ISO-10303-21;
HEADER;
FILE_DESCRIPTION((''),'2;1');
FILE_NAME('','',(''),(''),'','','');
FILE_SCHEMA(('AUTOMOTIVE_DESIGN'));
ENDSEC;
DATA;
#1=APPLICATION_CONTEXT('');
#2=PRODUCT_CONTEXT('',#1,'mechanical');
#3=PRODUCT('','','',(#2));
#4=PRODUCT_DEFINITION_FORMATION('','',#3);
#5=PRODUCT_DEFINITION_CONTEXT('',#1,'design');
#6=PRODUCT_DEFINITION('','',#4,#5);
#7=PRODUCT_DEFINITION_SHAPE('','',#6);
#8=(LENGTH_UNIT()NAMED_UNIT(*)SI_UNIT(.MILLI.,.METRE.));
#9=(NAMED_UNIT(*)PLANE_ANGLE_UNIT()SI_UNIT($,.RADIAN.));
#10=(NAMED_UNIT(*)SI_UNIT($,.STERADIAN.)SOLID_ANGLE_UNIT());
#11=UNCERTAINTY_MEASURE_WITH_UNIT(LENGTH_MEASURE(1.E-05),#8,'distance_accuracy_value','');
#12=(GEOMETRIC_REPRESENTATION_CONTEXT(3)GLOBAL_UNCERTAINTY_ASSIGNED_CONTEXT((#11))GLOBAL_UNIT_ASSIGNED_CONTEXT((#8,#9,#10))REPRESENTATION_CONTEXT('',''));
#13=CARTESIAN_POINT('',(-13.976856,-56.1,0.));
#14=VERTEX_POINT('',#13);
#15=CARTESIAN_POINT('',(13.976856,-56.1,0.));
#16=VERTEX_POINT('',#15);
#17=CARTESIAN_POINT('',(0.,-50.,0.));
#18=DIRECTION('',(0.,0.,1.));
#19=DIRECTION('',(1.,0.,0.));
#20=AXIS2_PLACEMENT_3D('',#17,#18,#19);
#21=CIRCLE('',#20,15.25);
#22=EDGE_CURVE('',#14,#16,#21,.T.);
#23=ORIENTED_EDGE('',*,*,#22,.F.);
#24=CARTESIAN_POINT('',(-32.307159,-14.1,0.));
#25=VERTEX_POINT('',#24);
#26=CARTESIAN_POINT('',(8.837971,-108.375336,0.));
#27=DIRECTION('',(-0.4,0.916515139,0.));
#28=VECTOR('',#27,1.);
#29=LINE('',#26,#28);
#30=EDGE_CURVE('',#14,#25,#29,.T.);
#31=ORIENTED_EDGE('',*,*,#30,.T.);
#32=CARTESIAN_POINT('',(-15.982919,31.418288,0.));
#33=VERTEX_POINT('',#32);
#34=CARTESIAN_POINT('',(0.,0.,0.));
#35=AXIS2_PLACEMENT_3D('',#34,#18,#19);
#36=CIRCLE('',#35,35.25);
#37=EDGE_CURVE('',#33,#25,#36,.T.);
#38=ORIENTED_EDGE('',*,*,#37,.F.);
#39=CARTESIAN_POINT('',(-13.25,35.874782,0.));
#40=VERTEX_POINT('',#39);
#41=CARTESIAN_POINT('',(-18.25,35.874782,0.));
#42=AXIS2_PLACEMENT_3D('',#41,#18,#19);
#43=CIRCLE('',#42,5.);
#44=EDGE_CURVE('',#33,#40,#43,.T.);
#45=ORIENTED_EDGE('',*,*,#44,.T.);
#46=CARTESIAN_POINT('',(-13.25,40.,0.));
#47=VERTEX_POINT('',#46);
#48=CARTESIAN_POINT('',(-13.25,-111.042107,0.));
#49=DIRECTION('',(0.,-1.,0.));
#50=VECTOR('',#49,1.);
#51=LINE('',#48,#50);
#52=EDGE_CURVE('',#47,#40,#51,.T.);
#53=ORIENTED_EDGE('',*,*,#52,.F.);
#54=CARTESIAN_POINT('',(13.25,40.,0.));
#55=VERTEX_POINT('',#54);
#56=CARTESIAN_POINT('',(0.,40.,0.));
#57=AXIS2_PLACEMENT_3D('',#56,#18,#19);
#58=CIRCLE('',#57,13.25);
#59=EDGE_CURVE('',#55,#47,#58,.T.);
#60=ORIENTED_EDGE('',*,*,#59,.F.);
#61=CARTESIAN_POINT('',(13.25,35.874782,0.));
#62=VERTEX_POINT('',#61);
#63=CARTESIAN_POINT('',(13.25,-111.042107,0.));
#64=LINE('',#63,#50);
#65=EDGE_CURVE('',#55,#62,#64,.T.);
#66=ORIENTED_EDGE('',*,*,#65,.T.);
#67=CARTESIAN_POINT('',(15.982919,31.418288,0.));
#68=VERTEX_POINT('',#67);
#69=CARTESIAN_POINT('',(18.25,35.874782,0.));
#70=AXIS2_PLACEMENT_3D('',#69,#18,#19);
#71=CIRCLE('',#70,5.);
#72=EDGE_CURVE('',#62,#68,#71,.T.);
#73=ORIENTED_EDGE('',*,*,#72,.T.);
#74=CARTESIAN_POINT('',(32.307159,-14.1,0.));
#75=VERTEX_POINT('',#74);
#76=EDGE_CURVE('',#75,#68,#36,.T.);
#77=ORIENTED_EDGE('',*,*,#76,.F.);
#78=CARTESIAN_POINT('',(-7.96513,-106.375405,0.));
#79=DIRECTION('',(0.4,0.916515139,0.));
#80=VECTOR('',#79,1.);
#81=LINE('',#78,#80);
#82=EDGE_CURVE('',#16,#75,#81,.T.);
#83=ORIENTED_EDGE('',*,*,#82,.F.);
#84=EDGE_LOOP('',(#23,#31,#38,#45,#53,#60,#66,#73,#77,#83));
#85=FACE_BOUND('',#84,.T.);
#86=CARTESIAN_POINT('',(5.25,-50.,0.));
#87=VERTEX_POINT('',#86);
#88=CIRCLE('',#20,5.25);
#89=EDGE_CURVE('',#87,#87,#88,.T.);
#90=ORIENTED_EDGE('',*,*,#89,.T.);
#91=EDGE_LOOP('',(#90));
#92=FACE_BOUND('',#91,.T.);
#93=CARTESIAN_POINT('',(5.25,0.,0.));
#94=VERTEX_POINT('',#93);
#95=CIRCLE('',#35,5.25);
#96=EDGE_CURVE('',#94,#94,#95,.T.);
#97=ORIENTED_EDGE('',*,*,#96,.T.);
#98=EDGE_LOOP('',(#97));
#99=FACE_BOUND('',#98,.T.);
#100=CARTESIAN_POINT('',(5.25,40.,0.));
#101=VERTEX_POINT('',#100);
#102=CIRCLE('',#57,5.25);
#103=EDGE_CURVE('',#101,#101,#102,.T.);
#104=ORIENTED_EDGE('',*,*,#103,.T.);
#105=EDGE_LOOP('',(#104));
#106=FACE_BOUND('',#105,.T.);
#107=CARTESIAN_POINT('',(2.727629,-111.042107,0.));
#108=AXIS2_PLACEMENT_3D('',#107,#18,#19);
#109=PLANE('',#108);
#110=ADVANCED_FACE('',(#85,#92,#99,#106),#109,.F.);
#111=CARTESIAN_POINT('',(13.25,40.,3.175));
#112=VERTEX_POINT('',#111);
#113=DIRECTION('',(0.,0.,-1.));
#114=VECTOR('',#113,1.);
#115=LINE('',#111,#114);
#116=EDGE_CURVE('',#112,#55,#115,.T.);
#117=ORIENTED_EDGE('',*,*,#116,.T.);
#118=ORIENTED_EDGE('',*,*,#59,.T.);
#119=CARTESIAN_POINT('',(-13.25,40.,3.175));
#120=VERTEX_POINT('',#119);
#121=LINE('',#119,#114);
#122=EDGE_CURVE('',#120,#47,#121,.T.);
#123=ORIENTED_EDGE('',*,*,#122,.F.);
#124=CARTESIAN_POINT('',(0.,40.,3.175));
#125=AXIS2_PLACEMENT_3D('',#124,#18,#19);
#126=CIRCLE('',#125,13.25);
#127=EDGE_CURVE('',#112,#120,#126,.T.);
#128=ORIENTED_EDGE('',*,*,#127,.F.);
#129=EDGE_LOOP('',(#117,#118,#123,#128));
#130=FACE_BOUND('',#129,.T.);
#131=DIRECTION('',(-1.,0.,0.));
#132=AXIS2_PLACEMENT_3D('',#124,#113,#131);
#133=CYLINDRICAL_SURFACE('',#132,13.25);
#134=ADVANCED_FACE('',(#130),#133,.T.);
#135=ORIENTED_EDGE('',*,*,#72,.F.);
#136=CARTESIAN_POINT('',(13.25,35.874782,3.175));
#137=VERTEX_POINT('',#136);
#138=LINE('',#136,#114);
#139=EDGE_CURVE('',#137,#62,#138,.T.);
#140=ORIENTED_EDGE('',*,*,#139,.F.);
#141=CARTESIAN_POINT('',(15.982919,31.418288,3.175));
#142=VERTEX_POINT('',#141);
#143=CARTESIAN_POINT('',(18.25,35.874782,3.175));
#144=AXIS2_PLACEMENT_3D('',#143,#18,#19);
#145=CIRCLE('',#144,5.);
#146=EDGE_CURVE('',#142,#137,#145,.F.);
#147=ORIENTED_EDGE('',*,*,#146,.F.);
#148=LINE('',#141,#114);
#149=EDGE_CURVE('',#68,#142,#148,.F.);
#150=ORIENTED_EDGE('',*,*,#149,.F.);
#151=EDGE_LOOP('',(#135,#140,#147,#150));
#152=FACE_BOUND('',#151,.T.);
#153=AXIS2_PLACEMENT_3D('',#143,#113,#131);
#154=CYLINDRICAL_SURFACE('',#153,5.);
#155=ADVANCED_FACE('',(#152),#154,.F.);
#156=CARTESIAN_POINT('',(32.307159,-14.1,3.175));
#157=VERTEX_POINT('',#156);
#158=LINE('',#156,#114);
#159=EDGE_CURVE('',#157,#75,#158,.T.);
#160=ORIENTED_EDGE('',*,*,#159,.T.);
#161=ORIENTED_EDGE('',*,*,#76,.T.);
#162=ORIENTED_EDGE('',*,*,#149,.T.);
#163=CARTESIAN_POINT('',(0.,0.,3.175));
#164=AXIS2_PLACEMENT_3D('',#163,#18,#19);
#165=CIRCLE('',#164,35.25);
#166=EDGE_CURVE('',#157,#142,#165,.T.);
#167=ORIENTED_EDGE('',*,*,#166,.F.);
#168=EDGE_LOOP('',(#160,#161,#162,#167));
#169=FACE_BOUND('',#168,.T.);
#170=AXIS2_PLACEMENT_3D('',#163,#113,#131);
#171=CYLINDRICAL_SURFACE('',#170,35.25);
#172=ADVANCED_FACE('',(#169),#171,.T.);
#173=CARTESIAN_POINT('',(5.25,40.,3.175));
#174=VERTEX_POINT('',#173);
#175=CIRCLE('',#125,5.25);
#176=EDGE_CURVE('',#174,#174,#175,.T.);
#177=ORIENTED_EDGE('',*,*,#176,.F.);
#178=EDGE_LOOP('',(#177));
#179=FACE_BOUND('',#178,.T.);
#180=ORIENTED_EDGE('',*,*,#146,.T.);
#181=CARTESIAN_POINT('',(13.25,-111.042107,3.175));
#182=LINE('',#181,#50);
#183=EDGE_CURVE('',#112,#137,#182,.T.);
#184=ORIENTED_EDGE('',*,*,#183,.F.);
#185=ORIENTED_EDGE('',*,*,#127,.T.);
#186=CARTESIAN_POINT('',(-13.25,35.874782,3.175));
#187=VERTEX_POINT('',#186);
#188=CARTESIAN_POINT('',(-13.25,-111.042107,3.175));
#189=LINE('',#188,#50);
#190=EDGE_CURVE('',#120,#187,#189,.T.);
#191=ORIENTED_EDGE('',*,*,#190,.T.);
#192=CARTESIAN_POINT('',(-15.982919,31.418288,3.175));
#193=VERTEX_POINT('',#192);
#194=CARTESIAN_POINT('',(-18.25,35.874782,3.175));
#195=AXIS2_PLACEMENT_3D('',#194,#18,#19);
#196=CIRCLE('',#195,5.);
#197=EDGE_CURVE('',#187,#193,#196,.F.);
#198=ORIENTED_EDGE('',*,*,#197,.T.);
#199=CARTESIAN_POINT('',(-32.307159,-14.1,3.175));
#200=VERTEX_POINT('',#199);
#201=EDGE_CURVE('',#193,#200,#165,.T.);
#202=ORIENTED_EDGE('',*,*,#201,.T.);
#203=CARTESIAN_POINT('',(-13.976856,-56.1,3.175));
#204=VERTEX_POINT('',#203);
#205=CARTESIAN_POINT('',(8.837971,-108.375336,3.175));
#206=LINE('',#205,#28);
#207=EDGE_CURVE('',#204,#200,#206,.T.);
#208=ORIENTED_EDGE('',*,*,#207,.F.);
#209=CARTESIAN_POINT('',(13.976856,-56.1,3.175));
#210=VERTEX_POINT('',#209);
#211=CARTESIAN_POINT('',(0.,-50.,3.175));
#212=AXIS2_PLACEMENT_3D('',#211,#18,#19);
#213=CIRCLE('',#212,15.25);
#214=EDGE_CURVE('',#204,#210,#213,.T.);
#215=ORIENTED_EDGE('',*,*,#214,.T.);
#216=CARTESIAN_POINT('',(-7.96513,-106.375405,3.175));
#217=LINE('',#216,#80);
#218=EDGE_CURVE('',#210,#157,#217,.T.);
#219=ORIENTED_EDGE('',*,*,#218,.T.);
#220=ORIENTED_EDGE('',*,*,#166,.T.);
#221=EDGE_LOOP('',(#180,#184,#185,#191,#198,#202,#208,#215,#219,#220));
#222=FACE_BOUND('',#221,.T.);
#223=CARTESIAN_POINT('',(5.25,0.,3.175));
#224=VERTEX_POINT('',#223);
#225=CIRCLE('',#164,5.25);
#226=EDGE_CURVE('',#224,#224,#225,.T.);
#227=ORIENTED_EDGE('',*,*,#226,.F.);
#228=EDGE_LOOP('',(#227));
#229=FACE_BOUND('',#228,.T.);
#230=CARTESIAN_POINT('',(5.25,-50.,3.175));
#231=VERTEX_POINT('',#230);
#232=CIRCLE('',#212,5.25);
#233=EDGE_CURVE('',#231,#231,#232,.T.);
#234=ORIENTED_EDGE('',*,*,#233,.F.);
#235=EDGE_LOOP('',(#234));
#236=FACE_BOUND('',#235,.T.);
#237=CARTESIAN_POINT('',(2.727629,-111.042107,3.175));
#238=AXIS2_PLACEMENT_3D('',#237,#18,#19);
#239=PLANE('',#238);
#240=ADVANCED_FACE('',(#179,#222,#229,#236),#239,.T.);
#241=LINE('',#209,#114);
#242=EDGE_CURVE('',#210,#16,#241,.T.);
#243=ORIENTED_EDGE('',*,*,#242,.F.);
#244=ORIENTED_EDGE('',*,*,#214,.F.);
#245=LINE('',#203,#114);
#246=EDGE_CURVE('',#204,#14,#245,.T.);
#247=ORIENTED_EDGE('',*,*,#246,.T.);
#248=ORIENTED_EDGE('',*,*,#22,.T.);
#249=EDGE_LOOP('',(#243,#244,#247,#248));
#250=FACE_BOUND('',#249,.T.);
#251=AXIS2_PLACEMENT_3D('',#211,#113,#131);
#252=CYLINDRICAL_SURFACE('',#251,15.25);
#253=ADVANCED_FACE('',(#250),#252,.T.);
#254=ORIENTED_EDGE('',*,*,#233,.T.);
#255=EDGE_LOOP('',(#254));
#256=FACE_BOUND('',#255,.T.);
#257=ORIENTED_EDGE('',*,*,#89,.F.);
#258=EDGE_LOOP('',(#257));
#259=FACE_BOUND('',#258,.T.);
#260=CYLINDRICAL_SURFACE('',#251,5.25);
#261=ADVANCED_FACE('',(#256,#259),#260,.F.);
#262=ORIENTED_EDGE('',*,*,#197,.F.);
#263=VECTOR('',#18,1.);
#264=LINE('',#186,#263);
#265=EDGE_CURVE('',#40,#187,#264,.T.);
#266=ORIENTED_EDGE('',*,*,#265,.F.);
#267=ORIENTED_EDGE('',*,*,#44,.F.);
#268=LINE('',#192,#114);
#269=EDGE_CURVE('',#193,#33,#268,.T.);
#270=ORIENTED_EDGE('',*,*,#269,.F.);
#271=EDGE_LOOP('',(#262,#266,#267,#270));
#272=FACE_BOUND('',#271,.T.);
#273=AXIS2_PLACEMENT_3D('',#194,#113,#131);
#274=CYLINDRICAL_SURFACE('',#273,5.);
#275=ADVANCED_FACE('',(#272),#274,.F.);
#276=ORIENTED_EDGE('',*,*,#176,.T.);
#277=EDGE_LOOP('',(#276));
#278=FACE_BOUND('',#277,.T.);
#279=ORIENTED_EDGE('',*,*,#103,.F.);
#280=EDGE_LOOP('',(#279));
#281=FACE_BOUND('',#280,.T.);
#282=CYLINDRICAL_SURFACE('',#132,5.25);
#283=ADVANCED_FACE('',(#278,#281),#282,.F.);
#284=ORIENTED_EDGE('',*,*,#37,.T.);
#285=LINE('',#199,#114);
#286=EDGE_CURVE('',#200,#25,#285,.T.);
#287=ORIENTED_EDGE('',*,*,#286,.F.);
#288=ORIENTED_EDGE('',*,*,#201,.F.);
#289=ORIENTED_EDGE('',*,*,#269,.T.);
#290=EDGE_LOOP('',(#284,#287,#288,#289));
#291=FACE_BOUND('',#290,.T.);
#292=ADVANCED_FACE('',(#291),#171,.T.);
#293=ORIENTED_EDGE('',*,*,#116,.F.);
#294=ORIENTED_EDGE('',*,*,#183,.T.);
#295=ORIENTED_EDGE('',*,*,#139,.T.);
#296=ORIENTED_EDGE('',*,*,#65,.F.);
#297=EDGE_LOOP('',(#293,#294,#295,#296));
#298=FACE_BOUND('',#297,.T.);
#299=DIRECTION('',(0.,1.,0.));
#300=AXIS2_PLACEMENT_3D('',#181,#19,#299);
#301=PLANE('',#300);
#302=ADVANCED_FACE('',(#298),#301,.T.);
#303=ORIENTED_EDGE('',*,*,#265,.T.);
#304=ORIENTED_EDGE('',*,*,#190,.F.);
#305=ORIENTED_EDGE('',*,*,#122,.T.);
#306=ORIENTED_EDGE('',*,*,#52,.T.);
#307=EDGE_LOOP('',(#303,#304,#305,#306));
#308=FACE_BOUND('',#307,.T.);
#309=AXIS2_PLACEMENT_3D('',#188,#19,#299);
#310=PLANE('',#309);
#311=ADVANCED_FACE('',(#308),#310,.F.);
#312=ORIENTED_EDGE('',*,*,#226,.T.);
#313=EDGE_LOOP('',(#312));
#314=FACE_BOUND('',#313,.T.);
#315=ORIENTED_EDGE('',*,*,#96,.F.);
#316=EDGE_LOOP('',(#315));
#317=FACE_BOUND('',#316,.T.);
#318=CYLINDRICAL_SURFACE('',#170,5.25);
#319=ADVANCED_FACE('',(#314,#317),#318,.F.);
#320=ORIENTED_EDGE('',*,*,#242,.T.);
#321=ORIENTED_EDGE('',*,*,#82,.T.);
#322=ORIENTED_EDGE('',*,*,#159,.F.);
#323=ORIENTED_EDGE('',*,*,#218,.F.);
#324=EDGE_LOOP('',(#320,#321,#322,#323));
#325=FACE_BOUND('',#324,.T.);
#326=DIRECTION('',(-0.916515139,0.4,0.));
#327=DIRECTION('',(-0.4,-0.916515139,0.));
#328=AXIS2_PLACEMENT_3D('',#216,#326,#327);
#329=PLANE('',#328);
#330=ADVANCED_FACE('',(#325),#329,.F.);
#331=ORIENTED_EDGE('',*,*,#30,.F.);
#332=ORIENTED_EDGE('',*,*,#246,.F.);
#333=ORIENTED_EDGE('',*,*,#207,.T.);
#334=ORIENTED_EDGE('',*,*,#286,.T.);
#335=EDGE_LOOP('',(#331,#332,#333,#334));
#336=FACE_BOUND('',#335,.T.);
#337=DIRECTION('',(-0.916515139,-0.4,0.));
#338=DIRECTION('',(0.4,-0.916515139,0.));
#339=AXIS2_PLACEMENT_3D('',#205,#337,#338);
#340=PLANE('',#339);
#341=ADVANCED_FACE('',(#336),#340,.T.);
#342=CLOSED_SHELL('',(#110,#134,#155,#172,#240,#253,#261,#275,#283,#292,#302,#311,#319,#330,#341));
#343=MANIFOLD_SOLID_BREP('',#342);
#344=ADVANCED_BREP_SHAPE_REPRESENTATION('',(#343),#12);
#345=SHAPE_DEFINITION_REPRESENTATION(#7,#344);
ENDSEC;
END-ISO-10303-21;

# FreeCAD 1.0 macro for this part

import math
import FreeCAD as App
import Part
import Sketcher


def edges_at(feature, points):
    """Names of the edges that pass closest to the given points."""
    edges = feature.Shape.Edges
    near = lambda p: min(range(len(edges)), key=lambda i: edges[i].distToShape(Part.Vertex(*p))[0])
    return sorted({f"Edge{near(p) + 1}" for p in points})

doc = App.newDocument("Part")
body = doc.addObject("PartDesign::Body", "Body")

sketch1 = body.newObject("Sketcher::SketchObject", "Sketch")
sketch1.AttachmentSupport = (doc.getObject("XY_Plane"), [""])
sketch1.MapMode = "FlatFace"
sketch1.addGeometry([
    Part.ArcOfCircle(Part.Circle(App.Vector(0, 0, 0), App.Vector(0, 0, 1), 35.25), math.radians(112.079116), math.radians(203.578178)),
    Part.LineSegment(App.Vector(-32.307159, -14.1, 0), App.Vector(-13.976856, -56.1, 0)),
    Part.ArcOfCircle(Part.Circle(App.Vector(0, -50, 0), App.Vector(0, 0, 1), 15.25), math.radians(-156.421822), math.radians(-23.578178)),
    Part.LineSegment(App.Vector(13.976856, -56.1, 0), App.Vector(32.307159, -14.1, 0)),
    Part.ArcOfCircle(Part.Circle(App.Vector(0, 0, 0), App.Vector(0, 0, 1), 35.25), math.radians(-23.578178), math.radians(67.920884)),
    Part.LineSegment(App.Vector(13.25, 32.664966, 0), App.Vector(13.25, 40, 0)),
    Part.ArcOfCircle(Part.Circle(App.Vector(0, 40, 0), App.Vector(0, 0, 1), 13.25), math.radians(0), math.radians(180)),
    Part.LineSegment(App.Vector(-13.25, 40, 0), App.Vector(-13.25, 32.664966, 0)),
    Part.Circle(App.Vector(0, -50, 0), App.Vector(0, 0, 1), 5.25),
    Part.Circle(App.Vector(0, 0, 0), App.Vector(0, 0, 1), 5.25),
    Part.Circle(App.Vector(0, 40, 0), App.Vector(0, 0, 1), 5.25),
], False)
sketch1.addConstraint([
    Sketcher.Constraint("Tangent", 0, 2, 1, 1),
    Sketcher.Constraint("Tangent", 1, 2, 2, 1),
    Sketcher.Constraint("Tangent", 2, 2, 3, 1),
    Sketcher.Constraint("Tangent", 3, 2, 4, 1),
    Sketcher.Constraint("Coincident", 4, 2, 5, 1),
    Sketcher.Constraint("Tangent", 5, 2, 6, 1),
    Sketcher.Constraint("Tangent", 6, 2, 7, 1),
    Sketcher.Constraint("Coincident", 7, 2, 0, 1),
    Sketcher.Constraint("Vertical", 5),
    Sketcher.Constraint("Vertical", 7),
    Sketcher.Constraint("Coincident", 0, 3, -1, 1),
    Sketcher.Constraint("Coincident", 4, 3, -1, 1),
    Sketcher.Constraint("Coincident", 9, 3, -1, 1),
    Sketcher.Constraint("Coincident", 8, 3, 2, 3),
    Sketcher.Constraint("Coincident", 10, 3, 6, 3),
    Sketcher.Constraint("Equal", 0, 4),
    Sketcher.Constraint("Equal", 8, 9),
    Sketcher.Constraint("Equal", 9, 10),
    Sketcher.Constraint("PointOnObject", 2, 3, -2),
    Sketcher.Constraint("PointOnObject", 6, 3, -2),
    Sketcher.Constraint("Diameter", 8, 10.5),
    Sketcher.Constraint("Radius", 0, 35.25),
    Sketcher.Constraint("Radius", 2, 15.25),
    Sketcher.Constraint("Radius", 6, 13.25),
    Sketcher.Constraint("DistanceY", 2, 3, -1, 1, 50.0),
    Sketcher.Constraint("DistanceY", -1, 1, 6, 3, 40.0),
])
pad1 = body.newObject("PartDesign::Pad", "Pad")
pad1.Profile = sketch1
pad1.Length = 3.175
doc.recompute()

fillet = body.newObject("PartDesign::Fillet", "Fillet")
fillet.Base = (pad1, edges_at(pad1, [(13.25, 32.665, 1.587), (-13.25, 32.665, 1.587)]))
fillet.Radius = 5

doc.recompute()
